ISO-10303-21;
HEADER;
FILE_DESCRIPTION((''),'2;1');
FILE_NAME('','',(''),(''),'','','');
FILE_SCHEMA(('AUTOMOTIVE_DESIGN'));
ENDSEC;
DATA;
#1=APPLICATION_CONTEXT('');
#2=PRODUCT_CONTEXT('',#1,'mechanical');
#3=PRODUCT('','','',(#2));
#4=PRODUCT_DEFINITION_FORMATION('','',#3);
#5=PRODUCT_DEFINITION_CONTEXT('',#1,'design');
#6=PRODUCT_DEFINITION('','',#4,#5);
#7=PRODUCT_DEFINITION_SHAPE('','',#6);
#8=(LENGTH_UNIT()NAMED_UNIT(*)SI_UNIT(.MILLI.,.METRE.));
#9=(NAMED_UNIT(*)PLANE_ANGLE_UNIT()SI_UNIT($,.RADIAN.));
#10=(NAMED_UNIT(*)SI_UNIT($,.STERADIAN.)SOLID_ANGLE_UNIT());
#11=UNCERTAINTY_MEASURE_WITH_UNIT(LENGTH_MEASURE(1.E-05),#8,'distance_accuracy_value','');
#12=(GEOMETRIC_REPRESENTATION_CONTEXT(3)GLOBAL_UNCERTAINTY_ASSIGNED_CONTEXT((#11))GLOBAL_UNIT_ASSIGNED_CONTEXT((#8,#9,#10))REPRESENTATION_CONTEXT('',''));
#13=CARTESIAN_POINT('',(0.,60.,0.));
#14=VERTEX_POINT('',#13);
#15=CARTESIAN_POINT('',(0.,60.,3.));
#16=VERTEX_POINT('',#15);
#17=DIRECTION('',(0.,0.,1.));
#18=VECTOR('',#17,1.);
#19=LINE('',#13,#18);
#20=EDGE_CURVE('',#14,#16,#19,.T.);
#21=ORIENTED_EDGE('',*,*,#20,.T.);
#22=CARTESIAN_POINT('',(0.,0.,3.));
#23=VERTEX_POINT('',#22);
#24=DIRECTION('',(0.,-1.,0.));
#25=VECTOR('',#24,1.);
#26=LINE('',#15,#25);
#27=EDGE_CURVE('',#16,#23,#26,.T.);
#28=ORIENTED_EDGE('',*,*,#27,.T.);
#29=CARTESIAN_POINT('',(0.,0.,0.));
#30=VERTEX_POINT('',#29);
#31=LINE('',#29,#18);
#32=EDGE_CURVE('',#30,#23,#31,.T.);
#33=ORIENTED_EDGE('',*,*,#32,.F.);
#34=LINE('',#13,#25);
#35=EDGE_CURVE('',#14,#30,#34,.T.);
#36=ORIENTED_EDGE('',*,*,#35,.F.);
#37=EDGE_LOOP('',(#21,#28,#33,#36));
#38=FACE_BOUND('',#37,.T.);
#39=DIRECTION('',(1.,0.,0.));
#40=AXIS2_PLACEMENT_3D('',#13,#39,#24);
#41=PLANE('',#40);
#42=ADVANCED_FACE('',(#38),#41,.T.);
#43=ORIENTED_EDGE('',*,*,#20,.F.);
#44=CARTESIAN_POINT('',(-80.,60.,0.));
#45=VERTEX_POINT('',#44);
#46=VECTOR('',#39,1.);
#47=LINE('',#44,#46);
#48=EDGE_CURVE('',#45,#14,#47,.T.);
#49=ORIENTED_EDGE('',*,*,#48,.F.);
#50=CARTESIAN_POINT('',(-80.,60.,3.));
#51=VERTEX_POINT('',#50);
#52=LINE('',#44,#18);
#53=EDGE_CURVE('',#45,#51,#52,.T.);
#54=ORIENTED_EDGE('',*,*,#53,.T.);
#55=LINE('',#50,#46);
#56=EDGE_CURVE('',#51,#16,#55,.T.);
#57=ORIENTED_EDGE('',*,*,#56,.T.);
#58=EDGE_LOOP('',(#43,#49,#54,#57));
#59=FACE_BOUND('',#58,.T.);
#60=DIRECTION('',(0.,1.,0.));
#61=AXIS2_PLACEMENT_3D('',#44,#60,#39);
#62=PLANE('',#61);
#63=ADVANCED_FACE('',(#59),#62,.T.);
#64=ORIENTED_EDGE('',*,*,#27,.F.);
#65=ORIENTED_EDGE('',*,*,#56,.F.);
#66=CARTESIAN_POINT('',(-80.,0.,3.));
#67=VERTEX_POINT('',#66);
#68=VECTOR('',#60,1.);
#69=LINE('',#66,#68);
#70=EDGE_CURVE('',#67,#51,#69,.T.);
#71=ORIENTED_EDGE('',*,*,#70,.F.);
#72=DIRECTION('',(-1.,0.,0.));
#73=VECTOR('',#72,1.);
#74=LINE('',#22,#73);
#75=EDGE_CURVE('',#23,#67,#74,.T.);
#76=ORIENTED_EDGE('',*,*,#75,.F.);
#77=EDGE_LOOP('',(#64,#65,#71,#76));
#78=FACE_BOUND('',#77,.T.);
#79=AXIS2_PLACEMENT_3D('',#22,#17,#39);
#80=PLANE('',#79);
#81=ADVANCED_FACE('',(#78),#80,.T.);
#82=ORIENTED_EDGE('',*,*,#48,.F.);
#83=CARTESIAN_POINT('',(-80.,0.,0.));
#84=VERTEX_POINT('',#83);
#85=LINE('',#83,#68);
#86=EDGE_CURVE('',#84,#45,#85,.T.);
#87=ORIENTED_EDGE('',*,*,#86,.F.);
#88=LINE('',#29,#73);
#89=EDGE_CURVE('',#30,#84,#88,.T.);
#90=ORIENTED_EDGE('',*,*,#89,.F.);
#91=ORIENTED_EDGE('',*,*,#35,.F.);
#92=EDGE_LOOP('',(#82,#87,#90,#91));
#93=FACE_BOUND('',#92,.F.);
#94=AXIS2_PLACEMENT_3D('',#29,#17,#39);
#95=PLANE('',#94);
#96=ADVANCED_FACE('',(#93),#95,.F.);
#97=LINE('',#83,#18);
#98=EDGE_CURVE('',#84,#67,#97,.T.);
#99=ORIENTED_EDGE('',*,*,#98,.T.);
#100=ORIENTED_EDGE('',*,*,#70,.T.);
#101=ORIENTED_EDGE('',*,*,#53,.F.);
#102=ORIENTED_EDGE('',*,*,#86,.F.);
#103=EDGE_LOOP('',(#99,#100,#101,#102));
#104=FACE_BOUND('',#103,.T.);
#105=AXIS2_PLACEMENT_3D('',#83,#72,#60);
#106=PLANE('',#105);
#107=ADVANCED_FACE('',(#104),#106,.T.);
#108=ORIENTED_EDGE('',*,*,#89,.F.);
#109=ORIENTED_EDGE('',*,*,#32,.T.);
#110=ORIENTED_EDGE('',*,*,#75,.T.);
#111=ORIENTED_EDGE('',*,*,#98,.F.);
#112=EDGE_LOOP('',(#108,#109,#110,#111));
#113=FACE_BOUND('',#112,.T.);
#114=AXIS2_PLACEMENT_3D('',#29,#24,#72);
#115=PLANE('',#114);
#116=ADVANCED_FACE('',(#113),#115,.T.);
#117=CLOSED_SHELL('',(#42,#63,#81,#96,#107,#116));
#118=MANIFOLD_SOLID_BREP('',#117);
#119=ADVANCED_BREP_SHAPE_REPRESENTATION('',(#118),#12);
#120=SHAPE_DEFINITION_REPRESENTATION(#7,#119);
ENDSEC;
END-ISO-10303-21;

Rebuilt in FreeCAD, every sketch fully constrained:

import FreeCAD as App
import Part
import Sketcher
from FreeCAD import Vector
Q = App.Units.Quantity


def add_polygon(sketch, points):
    """Adds a closed chain of lines whose ends are joined by coincident constraints."""
    first, n = sketch.GeometryCount, len(points)
    for a, b in zip(points, points[1:] + points[:1]):
        sketch.addGeometry(Part.LineSegment(App.Vector(*a, 0), App.Vector(*b, 0)), False)
    for i in range(n):
        sketch.addConstraint(Sketcher.Constraint("Coincident", first + i, 2, first + (i + 1) % n, 1))

doc = App.newDocument("Part")
body = doc.addObject("PartDesign::Body", "Body")

# Sketch on XY plane
sketch1 = body.newObject("Sketcher::SketchObject", "Sketch")
sketch1.AttachmentSupport = (doc.getObject("XY_Plane"), [""])
sketch1.MapMode = "FlatFace"
add_polygon(sketch1, [(-80, 0), (0, 0), (0, 60), (-80, 60)])  # lines 0-3
sketch1.addConstraint(Sketcher.Constraint("Horizontal", 0))
sketch1.addConstraint(Sketcher.Constraint("Vertical", 1))
sketch1.addConstraint(Sketcher.Constraint("Horizontal", 2))
sketch1.addConstraint(Sketcher.Constraint("Vertical", 3))
sketch1.addConstraint(Sketcher.Constraint("Coincident", 0, 2, -1, 1))
sketch1.addConstraint(Sketcher.Constraint("DistanceX", 0, 1, 0, 2, Q("80 mm")))
sketch1.addConstraint(Sketcher.Constraint("DistanceY", 1, 1, 1, 2, Q("60 mm")))
pad1 = body.newObject("PartDesign::Pad", "Pad")
pad1.Profile = sketch1
pad1.Length = 3

doc.recompute()
